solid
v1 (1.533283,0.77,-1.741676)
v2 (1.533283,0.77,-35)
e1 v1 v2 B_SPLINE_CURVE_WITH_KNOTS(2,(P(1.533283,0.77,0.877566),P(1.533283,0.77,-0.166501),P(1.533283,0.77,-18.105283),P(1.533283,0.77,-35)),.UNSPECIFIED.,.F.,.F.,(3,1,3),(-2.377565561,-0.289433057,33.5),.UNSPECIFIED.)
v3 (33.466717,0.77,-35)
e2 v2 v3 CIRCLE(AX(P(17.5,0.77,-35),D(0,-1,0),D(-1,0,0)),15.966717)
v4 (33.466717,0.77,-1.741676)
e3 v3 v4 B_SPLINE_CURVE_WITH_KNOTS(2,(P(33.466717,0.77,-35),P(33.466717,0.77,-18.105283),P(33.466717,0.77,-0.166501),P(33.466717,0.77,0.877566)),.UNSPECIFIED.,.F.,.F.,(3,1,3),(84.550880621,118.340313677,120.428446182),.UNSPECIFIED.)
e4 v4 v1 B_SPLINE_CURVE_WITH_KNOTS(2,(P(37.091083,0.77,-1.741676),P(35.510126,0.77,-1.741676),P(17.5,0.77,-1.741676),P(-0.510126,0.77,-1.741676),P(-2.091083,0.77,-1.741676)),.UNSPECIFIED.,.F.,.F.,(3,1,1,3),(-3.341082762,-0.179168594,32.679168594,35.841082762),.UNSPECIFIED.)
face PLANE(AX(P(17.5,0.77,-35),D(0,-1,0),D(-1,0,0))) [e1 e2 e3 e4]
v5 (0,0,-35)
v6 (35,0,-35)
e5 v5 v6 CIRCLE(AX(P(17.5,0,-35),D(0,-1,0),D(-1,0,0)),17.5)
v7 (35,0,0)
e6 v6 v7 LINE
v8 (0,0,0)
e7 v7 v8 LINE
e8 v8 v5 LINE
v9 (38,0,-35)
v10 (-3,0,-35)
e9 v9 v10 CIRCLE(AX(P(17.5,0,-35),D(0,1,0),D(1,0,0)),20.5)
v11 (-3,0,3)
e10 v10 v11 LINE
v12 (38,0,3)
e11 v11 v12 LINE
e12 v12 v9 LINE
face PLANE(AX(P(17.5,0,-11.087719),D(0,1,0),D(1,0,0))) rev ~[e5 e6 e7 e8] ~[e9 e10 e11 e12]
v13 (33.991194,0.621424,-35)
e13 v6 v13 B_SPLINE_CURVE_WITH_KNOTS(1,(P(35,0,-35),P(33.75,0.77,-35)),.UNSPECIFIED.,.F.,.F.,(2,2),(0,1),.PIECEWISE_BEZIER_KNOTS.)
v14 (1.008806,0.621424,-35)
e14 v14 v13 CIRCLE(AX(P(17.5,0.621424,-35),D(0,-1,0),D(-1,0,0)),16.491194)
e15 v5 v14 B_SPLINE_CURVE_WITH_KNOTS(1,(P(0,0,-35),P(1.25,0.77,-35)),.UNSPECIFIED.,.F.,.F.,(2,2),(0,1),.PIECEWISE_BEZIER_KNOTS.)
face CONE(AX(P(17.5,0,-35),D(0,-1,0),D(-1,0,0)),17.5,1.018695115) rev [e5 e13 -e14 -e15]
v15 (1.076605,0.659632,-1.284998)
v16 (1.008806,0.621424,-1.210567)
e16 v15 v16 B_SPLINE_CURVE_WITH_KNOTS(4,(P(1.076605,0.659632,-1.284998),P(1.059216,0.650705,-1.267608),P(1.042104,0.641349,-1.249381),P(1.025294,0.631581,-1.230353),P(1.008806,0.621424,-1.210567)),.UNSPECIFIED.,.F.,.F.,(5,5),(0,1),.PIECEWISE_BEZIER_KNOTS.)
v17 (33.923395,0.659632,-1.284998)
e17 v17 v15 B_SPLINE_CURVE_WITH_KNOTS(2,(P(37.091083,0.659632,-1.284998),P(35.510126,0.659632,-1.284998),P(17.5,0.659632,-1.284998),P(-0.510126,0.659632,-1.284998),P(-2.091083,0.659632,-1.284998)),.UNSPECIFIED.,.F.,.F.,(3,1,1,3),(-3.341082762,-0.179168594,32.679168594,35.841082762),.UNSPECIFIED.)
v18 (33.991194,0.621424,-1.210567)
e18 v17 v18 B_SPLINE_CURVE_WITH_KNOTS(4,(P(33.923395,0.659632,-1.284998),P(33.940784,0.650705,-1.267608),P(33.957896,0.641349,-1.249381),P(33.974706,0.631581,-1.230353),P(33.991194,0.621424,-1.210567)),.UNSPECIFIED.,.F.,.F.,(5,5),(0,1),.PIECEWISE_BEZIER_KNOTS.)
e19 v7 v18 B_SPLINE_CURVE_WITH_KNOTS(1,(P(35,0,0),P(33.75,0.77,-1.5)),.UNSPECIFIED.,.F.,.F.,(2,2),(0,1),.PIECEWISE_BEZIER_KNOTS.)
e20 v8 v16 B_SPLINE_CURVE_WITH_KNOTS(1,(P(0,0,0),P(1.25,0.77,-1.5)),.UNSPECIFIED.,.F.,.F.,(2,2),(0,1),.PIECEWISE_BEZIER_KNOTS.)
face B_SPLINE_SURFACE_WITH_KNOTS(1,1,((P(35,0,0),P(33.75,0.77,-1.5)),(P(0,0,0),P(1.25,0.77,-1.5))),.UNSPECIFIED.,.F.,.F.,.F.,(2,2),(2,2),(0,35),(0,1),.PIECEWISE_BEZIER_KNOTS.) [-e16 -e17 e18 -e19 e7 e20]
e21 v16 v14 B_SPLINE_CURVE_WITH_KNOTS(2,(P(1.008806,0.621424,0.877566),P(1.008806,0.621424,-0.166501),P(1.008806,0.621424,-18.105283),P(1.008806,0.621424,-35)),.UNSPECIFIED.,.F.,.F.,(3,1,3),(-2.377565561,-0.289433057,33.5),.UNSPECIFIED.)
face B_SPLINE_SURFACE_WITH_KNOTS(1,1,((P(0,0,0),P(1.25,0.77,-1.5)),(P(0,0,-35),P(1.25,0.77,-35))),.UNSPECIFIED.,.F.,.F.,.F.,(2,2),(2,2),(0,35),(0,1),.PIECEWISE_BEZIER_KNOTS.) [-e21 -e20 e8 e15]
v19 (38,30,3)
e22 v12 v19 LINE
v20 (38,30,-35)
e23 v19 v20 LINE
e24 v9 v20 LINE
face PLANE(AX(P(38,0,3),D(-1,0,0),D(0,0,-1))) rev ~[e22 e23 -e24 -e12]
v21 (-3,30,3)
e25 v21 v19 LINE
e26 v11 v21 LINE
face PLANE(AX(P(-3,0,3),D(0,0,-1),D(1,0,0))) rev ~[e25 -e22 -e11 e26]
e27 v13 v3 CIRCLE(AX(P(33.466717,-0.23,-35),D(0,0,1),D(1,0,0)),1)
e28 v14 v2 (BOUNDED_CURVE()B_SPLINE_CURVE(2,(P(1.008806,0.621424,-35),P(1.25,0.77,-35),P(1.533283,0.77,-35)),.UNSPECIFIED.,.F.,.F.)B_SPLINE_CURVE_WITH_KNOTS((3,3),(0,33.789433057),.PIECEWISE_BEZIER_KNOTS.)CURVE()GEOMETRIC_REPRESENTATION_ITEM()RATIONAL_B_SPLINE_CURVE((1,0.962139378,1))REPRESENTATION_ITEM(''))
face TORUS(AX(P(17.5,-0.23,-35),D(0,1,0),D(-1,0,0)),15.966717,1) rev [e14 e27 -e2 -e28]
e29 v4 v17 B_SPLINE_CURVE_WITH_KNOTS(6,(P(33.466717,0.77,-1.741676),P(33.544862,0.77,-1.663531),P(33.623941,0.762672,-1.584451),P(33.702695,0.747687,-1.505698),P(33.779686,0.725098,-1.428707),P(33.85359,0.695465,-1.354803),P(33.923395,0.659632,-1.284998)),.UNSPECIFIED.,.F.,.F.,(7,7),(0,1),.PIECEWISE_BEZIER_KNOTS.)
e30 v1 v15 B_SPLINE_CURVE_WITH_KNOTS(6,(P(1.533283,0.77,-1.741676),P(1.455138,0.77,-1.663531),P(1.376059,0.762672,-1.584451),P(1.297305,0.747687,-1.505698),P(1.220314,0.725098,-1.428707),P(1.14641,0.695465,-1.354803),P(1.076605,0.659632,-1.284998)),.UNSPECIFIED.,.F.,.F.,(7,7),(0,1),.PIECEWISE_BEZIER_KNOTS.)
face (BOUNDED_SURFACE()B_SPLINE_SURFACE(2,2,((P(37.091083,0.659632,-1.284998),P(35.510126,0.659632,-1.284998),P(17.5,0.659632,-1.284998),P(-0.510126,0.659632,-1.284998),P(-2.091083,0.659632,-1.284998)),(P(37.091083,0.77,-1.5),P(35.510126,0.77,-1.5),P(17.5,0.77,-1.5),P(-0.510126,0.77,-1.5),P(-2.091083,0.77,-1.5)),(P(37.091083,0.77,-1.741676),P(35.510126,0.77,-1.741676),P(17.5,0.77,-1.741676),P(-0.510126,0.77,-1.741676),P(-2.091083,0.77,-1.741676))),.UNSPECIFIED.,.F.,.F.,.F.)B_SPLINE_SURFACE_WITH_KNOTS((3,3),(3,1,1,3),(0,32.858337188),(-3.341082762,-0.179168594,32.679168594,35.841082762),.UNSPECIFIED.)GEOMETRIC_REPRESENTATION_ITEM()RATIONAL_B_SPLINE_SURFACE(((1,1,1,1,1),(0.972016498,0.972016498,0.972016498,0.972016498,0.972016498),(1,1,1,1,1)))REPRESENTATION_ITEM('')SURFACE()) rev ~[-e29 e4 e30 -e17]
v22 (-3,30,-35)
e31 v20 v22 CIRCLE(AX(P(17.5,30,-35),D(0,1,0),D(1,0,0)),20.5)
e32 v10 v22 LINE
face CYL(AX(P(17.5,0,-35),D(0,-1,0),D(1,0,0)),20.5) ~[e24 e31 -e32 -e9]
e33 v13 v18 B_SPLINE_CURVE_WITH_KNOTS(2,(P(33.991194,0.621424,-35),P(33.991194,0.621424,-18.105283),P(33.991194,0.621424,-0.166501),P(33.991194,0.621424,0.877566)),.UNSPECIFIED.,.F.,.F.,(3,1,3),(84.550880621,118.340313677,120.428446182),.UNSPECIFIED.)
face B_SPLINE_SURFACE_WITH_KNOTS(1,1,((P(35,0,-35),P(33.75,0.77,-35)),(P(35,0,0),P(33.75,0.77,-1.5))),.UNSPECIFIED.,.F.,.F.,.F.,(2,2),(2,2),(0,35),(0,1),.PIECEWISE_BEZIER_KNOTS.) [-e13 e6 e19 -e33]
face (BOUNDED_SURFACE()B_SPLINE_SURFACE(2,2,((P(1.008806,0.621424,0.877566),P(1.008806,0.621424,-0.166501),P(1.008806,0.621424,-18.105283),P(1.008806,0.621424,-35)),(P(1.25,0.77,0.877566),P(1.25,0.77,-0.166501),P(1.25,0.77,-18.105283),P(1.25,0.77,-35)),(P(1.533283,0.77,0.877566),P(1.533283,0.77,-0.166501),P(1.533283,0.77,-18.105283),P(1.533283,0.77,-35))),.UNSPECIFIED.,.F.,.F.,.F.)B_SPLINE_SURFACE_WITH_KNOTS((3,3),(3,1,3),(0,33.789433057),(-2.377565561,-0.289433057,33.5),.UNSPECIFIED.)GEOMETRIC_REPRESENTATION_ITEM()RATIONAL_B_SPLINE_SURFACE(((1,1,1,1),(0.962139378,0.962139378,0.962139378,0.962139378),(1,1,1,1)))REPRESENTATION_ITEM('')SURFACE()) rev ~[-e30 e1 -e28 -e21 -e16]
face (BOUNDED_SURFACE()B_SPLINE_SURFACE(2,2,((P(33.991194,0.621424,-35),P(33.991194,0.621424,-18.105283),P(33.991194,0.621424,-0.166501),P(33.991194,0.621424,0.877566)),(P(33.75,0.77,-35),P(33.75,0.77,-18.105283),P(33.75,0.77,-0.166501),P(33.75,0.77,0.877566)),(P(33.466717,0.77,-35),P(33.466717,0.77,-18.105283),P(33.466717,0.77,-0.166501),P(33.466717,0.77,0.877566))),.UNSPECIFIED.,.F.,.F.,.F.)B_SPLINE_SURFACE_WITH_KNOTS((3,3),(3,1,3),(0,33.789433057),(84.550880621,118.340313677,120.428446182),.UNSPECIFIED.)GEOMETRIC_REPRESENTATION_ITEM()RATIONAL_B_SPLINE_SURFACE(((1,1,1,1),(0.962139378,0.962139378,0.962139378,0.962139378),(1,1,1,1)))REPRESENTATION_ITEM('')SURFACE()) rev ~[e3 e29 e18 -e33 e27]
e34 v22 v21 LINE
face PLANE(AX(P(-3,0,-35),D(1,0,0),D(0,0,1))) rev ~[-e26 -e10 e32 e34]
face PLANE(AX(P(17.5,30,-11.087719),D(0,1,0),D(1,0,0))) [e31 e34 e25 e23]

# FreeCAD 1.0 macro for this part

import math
import FreeCAD as App
import Part
import Sketcher
Q = App.Units.Quantity


def edges_at(feature, points):
    """Names of the edges that pass closest to the given points."""
    edges = feature.Shape.Edges
    near = lambda p: min(range(len(edges)), key=lambda i: edges[i].distToShape(Part.Vertex(*p))[0])
    return sorted({f"Edge{near(p) + 1}" for p in points})

doc = App.newDocument("Part")
body = doc.addObject("PartDesign::Body", "Body")

# Sketch on XZ plane
sketch1 = body.newObject("Sketcher::SketchObject", "Sketch")
sketch1.AttachmentSupport = (doc.getObject("XZ_Plane"), [""])
sketch1.MapMode = "FlatFace"
sketch1.addGeometry([
    Part.LineSegment(App.Vector(-3, -35, 0), App.Vector(-3, 3, 0)),
    Part.LineSegment(App.Vector(-3, 3, 0), App.Vector(38, 3, 0)),
    Part.LineSegment(App.Vector(38, 3, 0), App.Vector(38, -35, 0)),
    Part.ArcOfCircle(Part.Circle(App.Vector(18, -35, 0), App.Vector(0, 0, 1), 20), math.radians(180), math.radians(360)),
], False)
sketch1.addConstraint([
    Sketcher.Constraint("Coincident", 0, 2, 1, 1),
    Sketcher.Constraint("Coincident", 1, 2, 2, 1),
    Sketcher.Constraint("Tangent", 2, 2, 3, 2),
    Sketcher.Constraint("Tangent", 3, 1, 0, 1),
    Sketcher.Constraint("Vertical", 0),
    Sketcher.Constraint("Horizontal", 1),
    Sketcher.Constraint("Vertical", 2),
    Sketcher.Constraint("Radius", 3, Q("20.5 mm")),
    Sketcher.Constraint("DistanceY", 0, 1, 0, 2, Q("38 mm")),
    Sketcher.Constraint("DistanceY", 3, 3, -1, 1, Q("35 mm")),
    Sketcher.Constraint("DistanceX", 0, 2, -1, 1, Q("3 mm")),
])
pad1 = body.newObject("PartDesign::Pad", "Pad")
pad1.Profile = sketch1
pad1.Length = 30
pad1.Reversed = True

# Sketch on XZ plane
sketch2 = body.newObject("Sketcher::SketchObject", "Sketch001")
sketch2.AttachmentSupport = (doc.getObject("XZ_Plane"), [""])
sketch2.MapMode = "FlatFace"
sketch2.addGeometry([
    Part.LineSegment(App.Vector(0, -35, 0), App.Vector(0, 0, 0)),
    Part.LineSegment(App.Vector(0, 0, 0), App.Vector(35, 0, 0)),
    Part.LineSegment(App.Vector(35, 0, 0), App.Vector(35, -35, 0)),
    Part.ArcOfCircle(Part.Circle(App.Vector(18, -35, 0), App.Vector(0, 0, 1), 18), math.radians(180), math.radians(360)),
], False)
sketch2.addConstraint([
    Sketcher.Constraint("Coincident", 0, 2, 1, 1),
    Sketcher.Constraint("Coincident", 1, 2, 2, 1),
    Sketcher.Constraint("Tangent", 2, 2, 3, 2),
    Sketcher.Constraint("Tangent", 3, 1, 0, 1),
    Sketcher.Constraint("Vertical", 0),
    Sketcher.Constraint("Horizontal", 1),
    Sketcher.Constraint("Vertical", 2),
    Sketcher.Constraint("Coincident", 0, 2, -1, 1),
    Sketcher.Constraint("Equal", 1, 0),
    Sketcher.Constraint("Radius", 3, Q("17.5 mm")),
])

# Sketch on XZ plane
sketch3 = body.newObject("Sketcher::SketchObject", "Sketch002")
sketch3.AttachmentSupport = (doc.getObject("XZ_Plane"), [""])
sketch3.MapMode = "FlatFace"
sketch3.AttachmentOffset = App.Placement(App.Vector(0, 0, -0.77), App.Rotation())
sketch3.addGeometry([
    Part.LineSegment(App.Vector(34, -2, 0), App.Vector(1, -2, 0)),
    Part.LineSegment(App.Vector(1, -2, 0), App.Vector(1, -35, 0)),
    Part.ArcOfCircle(Part.Circle(App.Vector(18, -35, 0), App.Vector(0, 0, 1), 16), math.radians(180), math.radians(360)),
    Part.LineSegment(App.Vector(34, -35, 0), App.Vector(34, -2, 0)),
], False)
sketch3.addConstraint([
    Sketcher.Constraint("Coincident", 0, 2, 1, 1),
    Sketcher.Constraint("Tangent", 1, 2, 2, 1),
    Sketcher.Constraint("Tangent", 2, 2, 3, 1),
    Sketcher.Constraint("Coincident", 3, 2, 0, 1),
    Sketcher.Constraint("Horizontal", 0),
    Sketcher.Constraint("Vertical", 1),
    Sketcher.Constraint("Vertical", 3),
    Sketcher.Constraint("Radius", 2, Q("16.25 mm")),
    Sketcher.Constraint("DistanceY", 1, 2, 1, 1, Q("33.5 mm")),
    Sketcher.Constraint("DistanceY", 2, 3, -1, 1, Q("35 mm")),
    Sketcher.Constraint("DistanceX", -1, 1, 2, 3, Q("17.5 mm")),
])

subtractiveloft = body.newObject("PartDesign::SubtractiveLoft", "SubtractiveLoft")
subtractiveloft.Profile = sketch2
subtractiveloft.Sections = [sketch3]
doc.recompute()

fillet = body.newObject("PartDesign::Fillet", "Fillet")
fillet.Base = (subtractiveloft, edges_at(subtractiveloft, [
    (1.25, 0.77, -18.25),
    (33.75, 0.77, -18.25),
    (17.5, 0.77, -1.5),
    (17.5, 0.77, -51.25),
]))
fillet.Radius = 1

doc.recompute()
